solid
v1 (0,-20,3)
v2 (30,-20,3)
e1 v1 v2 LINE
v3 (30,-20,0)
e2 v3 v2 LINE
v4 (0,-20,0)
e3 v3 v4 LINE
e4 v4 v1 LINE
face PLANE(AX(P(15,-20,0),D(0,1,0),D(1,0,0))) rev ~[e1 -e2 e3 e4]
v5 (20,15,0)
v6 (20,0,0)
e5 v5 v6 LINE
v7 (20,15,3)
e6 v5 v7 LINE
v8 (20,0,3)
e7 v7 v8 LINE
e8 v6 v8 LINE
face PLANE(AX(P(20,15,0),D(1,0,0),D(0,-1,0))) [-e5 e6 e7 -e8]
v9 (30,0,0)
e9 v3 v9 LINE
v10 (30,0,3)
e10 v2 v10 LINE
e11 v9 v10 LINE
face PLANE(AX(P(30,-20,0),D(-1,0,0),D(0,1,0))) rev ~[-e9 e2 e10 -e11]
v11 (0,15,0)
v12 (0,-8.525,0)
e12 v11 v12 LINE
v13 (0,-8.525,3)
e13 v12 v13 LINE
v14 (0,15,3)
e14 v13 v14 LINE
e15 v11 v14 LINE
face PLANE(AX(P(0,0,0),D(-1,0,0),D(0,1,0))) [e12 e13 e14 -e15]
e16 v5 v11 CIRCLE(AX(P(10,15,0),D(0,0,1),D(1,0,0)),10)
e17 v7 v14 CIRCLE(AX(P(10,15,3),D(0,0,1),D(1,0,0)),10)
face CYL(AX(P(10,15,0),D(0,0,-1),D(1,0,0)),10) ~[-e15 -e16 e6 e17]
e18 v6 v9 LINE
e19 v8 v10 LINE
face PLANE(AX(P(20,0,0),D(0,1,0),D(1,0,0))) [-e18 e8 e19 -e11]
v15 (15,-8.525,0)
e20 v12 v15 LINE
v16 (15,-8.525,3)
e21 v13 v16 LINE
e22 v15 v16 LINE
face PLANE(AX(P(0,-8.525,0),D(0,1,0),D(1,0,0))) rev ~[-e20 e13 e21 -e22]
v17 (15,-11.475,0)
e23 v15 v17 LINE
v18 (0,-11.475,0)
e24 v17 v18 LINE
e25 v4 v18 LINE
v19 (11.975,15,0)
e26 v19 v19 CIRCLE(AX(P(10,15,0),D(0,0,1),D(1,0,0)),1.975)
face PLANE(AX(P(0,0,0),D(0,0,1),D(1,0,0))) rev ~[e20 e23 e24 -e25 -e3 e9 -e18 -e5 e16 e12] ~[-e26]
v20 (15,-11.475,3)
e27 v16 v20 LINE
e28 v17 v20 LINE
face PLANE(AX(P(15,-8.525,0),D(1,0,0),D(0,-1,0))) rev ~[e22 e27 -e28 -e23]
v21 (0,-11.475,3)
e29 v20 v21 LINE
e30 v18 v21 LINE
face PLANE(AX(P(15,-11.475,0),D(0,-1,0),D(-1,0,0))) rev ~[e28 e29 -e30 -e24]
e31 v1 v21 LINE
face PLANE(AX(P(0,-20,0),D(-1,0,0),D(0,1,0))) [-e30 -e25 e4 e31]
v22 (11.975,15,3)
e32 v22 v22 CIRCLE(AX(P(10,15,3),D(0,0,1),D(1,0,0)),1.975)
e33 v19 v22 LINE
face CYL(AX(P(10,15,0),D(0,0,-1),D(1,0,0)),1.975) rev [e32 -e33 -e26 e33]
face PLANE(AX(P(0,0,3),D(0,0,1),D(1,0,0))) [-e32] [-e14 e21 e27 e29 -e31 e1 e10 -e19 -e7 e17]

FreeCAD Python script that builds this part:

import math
import FreeCAD as App
import Part
import Sketcher
from FreeCAD import Vector
Q = App.Units.Quantity

doc = App.newDocument("Part")
params = doc.addObject("Spreadsheet::Sheet", "Params")
for row, (alias, value) in enumerate([
    ("sketch1_radius", "10 mm"),
    ("sketch1_diameter", "3.95 mm"),
    ("sketch1_width", "15 mm"),
    ("sketch1_width2", "10 mm"),
    ("sketch1_height", "20 mm"),
    ("pad1_length", "3 mm"),
], start=1):
    params.set(f"A{row}", alias)
    params.set(f"B{row}", "=" + value)
    params.setAlias(f"B{row}", alias)

body = doc.addObject("PartDesign::Body", "Body")

# Sketch on XY plane
sketch1 = body.newObject("Sketcher::SketchObject", "Sketch")
sketch1.AttachmentSupport = (doc.getObject("XY_Plane"), [""])
sketch1.MapMode = "FlatFace"
sketch1.addGeometry(Part.LineSegment(Vector(0, 15, 0), Vector(0, -8.5, 0)), False)
sketch1.addGeometry(Part.LineSegment(Vector(0, -8.5, 0), Vector(15, -8.5, 0)), False)
sketch1.addGeometry(Part.LineSegment(Vector(15, -8.5, 0), Vector(15, -11.5, 0)), False)
sketch1.addGeometry(Part.LineSegment(Vector(15, -11.5, 0), Vector(0, -11.5, 0)), False)
sketch1.addGeometry(Part.LineSegment(Vector(0, -11.5, 0), Vector(0, -20, 0)), False)
sketch1.addGeometry(Part.LineSegment(Vector(0, -20, 0), Vector(30, -20, 0)), False)
sketch1.addGeometry(Part.LineSegment(Vector(30, -20, 0), Vector(30, 0, 0)), False)
sketch1.addGeometry(Part.LineSegment(Vector(30, 0, 0), Vector(20, 0, 0)), False)
sketch1.addGeometry(Part.LineSegment(Vector(20, 0, 0), Vector(20, 15, 0)), False)
sketch1.addGeometry(Part.ArcOfCircle(Part.Circle(Vector(10, 15, 0), Vector(0, 0, 1), 10), math.radians(0), math.radians(180)), False)
sketch1.addGeometry(Part.Circle(Vector(10, 15, 0), Vector(0, 0, 1), 2), False)
sketch1.addConstraint(Sketcher.Constraint("Coincident", 0, 2, 1, 1))
sketch1.addConstraint(Sketcher.Constraint("Coincident", 1, 2, 2, 1))
sketch1.addConstraint(Sketcher.Constraint("Coincident", 2, 2, 3, 1))
sketch1.addConstraint(Sketcher.Constraint("Coincident", 3, 2, 4, 1))
sketch1.addConstraint(Sketcher.Constraint("Coincident", 4, 2, 5, 1))
sketch1.addConstraint(Sketcher.Constraint("Coincident", 5, 2, 6, 1))
sketch1.addConstraint(Sketcher.Constraint("Coincident", 6, 2, 7, 1))
sketch1.addConstraint(Sketcher.Constraint("Coincident", 7, 2, 8, 1))
sketch1.addConstraint(Sketcher.Constraint("Tangent", 8, 2, 9, 1))
sketch1.addConstraint(Sketcher.Constraint("Tangent", 9, 2, 0, 1))
sketch1.addConstraint(Sketcher.Constraint("Vertical", 0))
sketch1.addConstraint(Sketcher.Constraint("Horizontal", 1))
sketch1.addConstraint(Sketcher.Constraint("Vertical", 2))
sketch1.addConstraint(Sketcher.Constraint("Horizontal", 3))
sketch1.addConstraint(Sketcher.Constraint("Vertical", 4))
sketch1.addConstraint(Sketcher.Constraint("Horizontal", 5))
sketch1.addConstraint(Sketcher.Constraint("Vertical", 6))
sketch1.addConstraint(Sketcher.Constraint("Horizontal", 7))
sketch1.addConstraint(Sketcher.Constraint("Vertical", 8))
sketch1.addConstraint(Sketcher.Constraint("Coincident", 10, 3, 9, 3))
sketch1.addConstraint(Sketcher.Constraint("PointOnObject", 0, 2, -2))
sketch1.addConstraint(Sketcher.Constraint("PointOnObject", 3, 2, -2))
sketch1.addConstraint(Sketcher.Constraint("PointOnObject", 6, 2, -1))
sketch1.addConstraint(Sketcher.Constraint("Equal", 3, 8))
sketch1.addConstraint(Sketcher.Constraint("Radius", 9, Q("10 mm")))
sketch1.addConstraint(Sketcher.Constraint("Diameter", 10, Q("3.95 mm")))
sketch1.addConstraint(Sketcher.Constraint("DistanceX", 1, 1, 1, 2, Q("15 mm")))
sketch1.addConstraint(Sketcher.Constraint("DistanceX", 7, 2, 7, 1, Q("10 mm")))
sketch1.addConstraint(Sketcher.Constraint("DistanceY", 6, 1, 6, 2, Q("20 mm")))
sketch1.addConstraint(Sketcher.Constraint("DistanceY", 2, 2, 2, 1, Q("2.95 mm")))
sketch1.addConstraint(Sketcher.Constraint("DistanceY", 0, 2, 0, 1, Q("23.525 mm")))
sketch1.setExpression("Constraints[24]", "Params.sketch1_radius")
sketch1.setExpression("Constraints[25]", "Params.sketch1_diameter")
sketch1.setExpression("Constraints[26]", "Params.sketch1_width")
sketch1.setExpression("Constraints[27]", "Params.sketch1_width2")
sketch1.setExpression("Constraints[28]", "Params.sketch1_height")
pad1 = body.newObject("PartDesign::Pad", "Pad")
pad1.Profile = sketch1
pad1.setExpression("Length", "Params.pad1_length")

doc.recompute()
